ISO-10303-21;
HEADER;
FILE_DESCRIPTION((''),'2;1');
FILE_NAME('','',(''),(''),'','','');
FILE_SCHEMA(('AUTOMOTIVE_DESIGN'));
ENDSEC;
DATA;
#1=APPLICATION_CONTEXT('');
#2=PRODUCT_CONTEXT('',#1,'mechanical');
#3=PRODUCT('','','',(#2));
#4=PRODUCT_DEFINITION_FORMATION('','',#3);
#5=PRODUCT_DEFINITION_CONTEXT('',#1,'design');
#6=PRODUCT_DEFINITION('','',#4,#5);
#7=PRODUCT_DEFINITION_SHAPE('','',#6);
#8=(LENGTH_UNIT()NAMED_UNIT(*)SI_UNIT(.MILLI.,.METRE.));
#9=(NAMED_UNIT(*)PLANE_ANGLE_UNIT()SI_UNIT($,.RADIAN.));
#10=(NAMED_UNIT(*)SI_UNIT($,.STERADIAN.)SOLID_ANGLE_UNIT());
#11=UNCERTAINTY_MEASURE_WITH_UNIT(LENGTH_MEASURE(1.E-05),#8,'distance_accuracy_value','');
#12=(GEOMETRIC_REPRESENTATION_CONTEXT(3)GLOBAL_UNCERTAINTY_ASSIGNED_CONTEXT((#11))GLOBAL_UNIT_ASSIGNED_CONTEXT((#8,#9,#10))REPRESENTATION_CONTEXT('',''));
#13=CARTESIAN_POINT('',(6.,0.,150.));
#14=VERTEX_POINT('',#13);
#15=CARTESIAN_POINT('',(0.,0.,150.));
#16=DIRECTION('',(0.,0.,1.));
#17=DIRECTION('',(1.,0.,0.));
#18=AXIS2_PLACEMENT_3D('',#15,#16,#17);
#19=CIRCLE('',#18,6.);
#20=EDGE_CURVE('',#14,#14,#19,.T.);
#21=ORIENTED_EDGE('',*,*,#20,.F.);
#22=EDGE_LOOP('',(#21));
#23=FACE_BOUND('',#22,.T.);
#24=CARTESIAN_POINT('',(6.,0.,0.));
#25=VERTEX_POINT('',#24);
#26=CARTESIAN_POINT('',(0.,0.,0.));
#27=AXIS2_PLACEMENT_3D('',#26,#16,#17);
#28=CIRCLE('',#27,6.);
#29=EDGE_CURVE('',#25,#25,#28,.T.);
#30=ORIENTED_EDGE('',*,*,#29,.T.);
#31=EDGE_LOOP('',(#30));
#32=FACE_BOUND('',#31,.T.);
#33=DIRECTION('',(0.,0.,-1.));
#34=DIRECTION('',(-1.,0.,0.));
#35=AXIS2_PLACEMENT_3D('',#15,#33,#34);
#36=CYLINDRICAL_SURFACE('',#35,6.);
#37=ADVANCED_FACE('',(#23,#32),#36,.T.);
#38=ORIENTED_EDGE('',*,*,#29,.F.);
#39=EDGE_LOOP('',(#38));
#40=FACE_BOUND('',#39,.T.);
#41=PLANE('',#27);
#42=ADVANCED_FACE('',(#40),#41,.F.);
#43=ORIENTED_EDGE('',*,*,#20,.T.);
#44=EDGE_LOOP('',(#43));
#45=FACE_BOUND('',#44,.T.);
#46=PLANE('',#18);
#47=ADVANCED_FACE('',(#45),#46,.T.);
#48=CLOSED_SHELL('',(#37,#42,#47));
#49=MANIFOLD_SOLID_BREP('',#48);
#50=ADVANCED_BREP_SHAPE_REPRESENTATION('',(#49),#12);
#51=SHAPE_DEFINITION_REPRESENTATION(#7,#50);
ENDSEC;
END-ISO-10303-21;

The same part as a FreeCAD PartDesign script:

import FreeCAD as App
import Part
import Sketcher
Q = App.Units.Quantity

doc = App.newDocument("Part")
params = doc.addObject("Spreadsheet::Sheet", "Params")
for row, (alias, value) in enumerate([
    ("sketch1_diameter", "12 mm"),
    ("pad1_length", "150 mm"),
], start=1):
    params.set(f"A{row}", alias)
    params.set(f"B{row}", "=" + value)
    params.setAlias(f"B{row}", alias)

body = doc.addObject("PartDesign::Body", "Body")

# Sketch on XY plane
sketch1 = body.newObject("Sketcher::SketchObject", "Sketch")
sketch1.AttachmentSupport = (doc.getObject("XY_Plane"), [""])
sketch1.MapMode = "FlatFace"
sketch1.addGeometry(Part.Circle(App.Vector(0, 0, 0), App.Vector(0, 0, 1), 6), False)
sketch1.addConstraint([
    Sketcher.Constraint("Coincident", 0, 3, -1, 1),
    Sketcher.Constraint("Diameter", 0, Q("12 mm")),
])
sketch1.setExpression("Constraints[1]", "Params.sketch1_diameter")
pad1 = body.newObject("PartDesign::Pad", "Pad")
pad1.Profile = sketch1
pad1.setExpression("Length", "Params.pad1_length")

doc.recompute()
